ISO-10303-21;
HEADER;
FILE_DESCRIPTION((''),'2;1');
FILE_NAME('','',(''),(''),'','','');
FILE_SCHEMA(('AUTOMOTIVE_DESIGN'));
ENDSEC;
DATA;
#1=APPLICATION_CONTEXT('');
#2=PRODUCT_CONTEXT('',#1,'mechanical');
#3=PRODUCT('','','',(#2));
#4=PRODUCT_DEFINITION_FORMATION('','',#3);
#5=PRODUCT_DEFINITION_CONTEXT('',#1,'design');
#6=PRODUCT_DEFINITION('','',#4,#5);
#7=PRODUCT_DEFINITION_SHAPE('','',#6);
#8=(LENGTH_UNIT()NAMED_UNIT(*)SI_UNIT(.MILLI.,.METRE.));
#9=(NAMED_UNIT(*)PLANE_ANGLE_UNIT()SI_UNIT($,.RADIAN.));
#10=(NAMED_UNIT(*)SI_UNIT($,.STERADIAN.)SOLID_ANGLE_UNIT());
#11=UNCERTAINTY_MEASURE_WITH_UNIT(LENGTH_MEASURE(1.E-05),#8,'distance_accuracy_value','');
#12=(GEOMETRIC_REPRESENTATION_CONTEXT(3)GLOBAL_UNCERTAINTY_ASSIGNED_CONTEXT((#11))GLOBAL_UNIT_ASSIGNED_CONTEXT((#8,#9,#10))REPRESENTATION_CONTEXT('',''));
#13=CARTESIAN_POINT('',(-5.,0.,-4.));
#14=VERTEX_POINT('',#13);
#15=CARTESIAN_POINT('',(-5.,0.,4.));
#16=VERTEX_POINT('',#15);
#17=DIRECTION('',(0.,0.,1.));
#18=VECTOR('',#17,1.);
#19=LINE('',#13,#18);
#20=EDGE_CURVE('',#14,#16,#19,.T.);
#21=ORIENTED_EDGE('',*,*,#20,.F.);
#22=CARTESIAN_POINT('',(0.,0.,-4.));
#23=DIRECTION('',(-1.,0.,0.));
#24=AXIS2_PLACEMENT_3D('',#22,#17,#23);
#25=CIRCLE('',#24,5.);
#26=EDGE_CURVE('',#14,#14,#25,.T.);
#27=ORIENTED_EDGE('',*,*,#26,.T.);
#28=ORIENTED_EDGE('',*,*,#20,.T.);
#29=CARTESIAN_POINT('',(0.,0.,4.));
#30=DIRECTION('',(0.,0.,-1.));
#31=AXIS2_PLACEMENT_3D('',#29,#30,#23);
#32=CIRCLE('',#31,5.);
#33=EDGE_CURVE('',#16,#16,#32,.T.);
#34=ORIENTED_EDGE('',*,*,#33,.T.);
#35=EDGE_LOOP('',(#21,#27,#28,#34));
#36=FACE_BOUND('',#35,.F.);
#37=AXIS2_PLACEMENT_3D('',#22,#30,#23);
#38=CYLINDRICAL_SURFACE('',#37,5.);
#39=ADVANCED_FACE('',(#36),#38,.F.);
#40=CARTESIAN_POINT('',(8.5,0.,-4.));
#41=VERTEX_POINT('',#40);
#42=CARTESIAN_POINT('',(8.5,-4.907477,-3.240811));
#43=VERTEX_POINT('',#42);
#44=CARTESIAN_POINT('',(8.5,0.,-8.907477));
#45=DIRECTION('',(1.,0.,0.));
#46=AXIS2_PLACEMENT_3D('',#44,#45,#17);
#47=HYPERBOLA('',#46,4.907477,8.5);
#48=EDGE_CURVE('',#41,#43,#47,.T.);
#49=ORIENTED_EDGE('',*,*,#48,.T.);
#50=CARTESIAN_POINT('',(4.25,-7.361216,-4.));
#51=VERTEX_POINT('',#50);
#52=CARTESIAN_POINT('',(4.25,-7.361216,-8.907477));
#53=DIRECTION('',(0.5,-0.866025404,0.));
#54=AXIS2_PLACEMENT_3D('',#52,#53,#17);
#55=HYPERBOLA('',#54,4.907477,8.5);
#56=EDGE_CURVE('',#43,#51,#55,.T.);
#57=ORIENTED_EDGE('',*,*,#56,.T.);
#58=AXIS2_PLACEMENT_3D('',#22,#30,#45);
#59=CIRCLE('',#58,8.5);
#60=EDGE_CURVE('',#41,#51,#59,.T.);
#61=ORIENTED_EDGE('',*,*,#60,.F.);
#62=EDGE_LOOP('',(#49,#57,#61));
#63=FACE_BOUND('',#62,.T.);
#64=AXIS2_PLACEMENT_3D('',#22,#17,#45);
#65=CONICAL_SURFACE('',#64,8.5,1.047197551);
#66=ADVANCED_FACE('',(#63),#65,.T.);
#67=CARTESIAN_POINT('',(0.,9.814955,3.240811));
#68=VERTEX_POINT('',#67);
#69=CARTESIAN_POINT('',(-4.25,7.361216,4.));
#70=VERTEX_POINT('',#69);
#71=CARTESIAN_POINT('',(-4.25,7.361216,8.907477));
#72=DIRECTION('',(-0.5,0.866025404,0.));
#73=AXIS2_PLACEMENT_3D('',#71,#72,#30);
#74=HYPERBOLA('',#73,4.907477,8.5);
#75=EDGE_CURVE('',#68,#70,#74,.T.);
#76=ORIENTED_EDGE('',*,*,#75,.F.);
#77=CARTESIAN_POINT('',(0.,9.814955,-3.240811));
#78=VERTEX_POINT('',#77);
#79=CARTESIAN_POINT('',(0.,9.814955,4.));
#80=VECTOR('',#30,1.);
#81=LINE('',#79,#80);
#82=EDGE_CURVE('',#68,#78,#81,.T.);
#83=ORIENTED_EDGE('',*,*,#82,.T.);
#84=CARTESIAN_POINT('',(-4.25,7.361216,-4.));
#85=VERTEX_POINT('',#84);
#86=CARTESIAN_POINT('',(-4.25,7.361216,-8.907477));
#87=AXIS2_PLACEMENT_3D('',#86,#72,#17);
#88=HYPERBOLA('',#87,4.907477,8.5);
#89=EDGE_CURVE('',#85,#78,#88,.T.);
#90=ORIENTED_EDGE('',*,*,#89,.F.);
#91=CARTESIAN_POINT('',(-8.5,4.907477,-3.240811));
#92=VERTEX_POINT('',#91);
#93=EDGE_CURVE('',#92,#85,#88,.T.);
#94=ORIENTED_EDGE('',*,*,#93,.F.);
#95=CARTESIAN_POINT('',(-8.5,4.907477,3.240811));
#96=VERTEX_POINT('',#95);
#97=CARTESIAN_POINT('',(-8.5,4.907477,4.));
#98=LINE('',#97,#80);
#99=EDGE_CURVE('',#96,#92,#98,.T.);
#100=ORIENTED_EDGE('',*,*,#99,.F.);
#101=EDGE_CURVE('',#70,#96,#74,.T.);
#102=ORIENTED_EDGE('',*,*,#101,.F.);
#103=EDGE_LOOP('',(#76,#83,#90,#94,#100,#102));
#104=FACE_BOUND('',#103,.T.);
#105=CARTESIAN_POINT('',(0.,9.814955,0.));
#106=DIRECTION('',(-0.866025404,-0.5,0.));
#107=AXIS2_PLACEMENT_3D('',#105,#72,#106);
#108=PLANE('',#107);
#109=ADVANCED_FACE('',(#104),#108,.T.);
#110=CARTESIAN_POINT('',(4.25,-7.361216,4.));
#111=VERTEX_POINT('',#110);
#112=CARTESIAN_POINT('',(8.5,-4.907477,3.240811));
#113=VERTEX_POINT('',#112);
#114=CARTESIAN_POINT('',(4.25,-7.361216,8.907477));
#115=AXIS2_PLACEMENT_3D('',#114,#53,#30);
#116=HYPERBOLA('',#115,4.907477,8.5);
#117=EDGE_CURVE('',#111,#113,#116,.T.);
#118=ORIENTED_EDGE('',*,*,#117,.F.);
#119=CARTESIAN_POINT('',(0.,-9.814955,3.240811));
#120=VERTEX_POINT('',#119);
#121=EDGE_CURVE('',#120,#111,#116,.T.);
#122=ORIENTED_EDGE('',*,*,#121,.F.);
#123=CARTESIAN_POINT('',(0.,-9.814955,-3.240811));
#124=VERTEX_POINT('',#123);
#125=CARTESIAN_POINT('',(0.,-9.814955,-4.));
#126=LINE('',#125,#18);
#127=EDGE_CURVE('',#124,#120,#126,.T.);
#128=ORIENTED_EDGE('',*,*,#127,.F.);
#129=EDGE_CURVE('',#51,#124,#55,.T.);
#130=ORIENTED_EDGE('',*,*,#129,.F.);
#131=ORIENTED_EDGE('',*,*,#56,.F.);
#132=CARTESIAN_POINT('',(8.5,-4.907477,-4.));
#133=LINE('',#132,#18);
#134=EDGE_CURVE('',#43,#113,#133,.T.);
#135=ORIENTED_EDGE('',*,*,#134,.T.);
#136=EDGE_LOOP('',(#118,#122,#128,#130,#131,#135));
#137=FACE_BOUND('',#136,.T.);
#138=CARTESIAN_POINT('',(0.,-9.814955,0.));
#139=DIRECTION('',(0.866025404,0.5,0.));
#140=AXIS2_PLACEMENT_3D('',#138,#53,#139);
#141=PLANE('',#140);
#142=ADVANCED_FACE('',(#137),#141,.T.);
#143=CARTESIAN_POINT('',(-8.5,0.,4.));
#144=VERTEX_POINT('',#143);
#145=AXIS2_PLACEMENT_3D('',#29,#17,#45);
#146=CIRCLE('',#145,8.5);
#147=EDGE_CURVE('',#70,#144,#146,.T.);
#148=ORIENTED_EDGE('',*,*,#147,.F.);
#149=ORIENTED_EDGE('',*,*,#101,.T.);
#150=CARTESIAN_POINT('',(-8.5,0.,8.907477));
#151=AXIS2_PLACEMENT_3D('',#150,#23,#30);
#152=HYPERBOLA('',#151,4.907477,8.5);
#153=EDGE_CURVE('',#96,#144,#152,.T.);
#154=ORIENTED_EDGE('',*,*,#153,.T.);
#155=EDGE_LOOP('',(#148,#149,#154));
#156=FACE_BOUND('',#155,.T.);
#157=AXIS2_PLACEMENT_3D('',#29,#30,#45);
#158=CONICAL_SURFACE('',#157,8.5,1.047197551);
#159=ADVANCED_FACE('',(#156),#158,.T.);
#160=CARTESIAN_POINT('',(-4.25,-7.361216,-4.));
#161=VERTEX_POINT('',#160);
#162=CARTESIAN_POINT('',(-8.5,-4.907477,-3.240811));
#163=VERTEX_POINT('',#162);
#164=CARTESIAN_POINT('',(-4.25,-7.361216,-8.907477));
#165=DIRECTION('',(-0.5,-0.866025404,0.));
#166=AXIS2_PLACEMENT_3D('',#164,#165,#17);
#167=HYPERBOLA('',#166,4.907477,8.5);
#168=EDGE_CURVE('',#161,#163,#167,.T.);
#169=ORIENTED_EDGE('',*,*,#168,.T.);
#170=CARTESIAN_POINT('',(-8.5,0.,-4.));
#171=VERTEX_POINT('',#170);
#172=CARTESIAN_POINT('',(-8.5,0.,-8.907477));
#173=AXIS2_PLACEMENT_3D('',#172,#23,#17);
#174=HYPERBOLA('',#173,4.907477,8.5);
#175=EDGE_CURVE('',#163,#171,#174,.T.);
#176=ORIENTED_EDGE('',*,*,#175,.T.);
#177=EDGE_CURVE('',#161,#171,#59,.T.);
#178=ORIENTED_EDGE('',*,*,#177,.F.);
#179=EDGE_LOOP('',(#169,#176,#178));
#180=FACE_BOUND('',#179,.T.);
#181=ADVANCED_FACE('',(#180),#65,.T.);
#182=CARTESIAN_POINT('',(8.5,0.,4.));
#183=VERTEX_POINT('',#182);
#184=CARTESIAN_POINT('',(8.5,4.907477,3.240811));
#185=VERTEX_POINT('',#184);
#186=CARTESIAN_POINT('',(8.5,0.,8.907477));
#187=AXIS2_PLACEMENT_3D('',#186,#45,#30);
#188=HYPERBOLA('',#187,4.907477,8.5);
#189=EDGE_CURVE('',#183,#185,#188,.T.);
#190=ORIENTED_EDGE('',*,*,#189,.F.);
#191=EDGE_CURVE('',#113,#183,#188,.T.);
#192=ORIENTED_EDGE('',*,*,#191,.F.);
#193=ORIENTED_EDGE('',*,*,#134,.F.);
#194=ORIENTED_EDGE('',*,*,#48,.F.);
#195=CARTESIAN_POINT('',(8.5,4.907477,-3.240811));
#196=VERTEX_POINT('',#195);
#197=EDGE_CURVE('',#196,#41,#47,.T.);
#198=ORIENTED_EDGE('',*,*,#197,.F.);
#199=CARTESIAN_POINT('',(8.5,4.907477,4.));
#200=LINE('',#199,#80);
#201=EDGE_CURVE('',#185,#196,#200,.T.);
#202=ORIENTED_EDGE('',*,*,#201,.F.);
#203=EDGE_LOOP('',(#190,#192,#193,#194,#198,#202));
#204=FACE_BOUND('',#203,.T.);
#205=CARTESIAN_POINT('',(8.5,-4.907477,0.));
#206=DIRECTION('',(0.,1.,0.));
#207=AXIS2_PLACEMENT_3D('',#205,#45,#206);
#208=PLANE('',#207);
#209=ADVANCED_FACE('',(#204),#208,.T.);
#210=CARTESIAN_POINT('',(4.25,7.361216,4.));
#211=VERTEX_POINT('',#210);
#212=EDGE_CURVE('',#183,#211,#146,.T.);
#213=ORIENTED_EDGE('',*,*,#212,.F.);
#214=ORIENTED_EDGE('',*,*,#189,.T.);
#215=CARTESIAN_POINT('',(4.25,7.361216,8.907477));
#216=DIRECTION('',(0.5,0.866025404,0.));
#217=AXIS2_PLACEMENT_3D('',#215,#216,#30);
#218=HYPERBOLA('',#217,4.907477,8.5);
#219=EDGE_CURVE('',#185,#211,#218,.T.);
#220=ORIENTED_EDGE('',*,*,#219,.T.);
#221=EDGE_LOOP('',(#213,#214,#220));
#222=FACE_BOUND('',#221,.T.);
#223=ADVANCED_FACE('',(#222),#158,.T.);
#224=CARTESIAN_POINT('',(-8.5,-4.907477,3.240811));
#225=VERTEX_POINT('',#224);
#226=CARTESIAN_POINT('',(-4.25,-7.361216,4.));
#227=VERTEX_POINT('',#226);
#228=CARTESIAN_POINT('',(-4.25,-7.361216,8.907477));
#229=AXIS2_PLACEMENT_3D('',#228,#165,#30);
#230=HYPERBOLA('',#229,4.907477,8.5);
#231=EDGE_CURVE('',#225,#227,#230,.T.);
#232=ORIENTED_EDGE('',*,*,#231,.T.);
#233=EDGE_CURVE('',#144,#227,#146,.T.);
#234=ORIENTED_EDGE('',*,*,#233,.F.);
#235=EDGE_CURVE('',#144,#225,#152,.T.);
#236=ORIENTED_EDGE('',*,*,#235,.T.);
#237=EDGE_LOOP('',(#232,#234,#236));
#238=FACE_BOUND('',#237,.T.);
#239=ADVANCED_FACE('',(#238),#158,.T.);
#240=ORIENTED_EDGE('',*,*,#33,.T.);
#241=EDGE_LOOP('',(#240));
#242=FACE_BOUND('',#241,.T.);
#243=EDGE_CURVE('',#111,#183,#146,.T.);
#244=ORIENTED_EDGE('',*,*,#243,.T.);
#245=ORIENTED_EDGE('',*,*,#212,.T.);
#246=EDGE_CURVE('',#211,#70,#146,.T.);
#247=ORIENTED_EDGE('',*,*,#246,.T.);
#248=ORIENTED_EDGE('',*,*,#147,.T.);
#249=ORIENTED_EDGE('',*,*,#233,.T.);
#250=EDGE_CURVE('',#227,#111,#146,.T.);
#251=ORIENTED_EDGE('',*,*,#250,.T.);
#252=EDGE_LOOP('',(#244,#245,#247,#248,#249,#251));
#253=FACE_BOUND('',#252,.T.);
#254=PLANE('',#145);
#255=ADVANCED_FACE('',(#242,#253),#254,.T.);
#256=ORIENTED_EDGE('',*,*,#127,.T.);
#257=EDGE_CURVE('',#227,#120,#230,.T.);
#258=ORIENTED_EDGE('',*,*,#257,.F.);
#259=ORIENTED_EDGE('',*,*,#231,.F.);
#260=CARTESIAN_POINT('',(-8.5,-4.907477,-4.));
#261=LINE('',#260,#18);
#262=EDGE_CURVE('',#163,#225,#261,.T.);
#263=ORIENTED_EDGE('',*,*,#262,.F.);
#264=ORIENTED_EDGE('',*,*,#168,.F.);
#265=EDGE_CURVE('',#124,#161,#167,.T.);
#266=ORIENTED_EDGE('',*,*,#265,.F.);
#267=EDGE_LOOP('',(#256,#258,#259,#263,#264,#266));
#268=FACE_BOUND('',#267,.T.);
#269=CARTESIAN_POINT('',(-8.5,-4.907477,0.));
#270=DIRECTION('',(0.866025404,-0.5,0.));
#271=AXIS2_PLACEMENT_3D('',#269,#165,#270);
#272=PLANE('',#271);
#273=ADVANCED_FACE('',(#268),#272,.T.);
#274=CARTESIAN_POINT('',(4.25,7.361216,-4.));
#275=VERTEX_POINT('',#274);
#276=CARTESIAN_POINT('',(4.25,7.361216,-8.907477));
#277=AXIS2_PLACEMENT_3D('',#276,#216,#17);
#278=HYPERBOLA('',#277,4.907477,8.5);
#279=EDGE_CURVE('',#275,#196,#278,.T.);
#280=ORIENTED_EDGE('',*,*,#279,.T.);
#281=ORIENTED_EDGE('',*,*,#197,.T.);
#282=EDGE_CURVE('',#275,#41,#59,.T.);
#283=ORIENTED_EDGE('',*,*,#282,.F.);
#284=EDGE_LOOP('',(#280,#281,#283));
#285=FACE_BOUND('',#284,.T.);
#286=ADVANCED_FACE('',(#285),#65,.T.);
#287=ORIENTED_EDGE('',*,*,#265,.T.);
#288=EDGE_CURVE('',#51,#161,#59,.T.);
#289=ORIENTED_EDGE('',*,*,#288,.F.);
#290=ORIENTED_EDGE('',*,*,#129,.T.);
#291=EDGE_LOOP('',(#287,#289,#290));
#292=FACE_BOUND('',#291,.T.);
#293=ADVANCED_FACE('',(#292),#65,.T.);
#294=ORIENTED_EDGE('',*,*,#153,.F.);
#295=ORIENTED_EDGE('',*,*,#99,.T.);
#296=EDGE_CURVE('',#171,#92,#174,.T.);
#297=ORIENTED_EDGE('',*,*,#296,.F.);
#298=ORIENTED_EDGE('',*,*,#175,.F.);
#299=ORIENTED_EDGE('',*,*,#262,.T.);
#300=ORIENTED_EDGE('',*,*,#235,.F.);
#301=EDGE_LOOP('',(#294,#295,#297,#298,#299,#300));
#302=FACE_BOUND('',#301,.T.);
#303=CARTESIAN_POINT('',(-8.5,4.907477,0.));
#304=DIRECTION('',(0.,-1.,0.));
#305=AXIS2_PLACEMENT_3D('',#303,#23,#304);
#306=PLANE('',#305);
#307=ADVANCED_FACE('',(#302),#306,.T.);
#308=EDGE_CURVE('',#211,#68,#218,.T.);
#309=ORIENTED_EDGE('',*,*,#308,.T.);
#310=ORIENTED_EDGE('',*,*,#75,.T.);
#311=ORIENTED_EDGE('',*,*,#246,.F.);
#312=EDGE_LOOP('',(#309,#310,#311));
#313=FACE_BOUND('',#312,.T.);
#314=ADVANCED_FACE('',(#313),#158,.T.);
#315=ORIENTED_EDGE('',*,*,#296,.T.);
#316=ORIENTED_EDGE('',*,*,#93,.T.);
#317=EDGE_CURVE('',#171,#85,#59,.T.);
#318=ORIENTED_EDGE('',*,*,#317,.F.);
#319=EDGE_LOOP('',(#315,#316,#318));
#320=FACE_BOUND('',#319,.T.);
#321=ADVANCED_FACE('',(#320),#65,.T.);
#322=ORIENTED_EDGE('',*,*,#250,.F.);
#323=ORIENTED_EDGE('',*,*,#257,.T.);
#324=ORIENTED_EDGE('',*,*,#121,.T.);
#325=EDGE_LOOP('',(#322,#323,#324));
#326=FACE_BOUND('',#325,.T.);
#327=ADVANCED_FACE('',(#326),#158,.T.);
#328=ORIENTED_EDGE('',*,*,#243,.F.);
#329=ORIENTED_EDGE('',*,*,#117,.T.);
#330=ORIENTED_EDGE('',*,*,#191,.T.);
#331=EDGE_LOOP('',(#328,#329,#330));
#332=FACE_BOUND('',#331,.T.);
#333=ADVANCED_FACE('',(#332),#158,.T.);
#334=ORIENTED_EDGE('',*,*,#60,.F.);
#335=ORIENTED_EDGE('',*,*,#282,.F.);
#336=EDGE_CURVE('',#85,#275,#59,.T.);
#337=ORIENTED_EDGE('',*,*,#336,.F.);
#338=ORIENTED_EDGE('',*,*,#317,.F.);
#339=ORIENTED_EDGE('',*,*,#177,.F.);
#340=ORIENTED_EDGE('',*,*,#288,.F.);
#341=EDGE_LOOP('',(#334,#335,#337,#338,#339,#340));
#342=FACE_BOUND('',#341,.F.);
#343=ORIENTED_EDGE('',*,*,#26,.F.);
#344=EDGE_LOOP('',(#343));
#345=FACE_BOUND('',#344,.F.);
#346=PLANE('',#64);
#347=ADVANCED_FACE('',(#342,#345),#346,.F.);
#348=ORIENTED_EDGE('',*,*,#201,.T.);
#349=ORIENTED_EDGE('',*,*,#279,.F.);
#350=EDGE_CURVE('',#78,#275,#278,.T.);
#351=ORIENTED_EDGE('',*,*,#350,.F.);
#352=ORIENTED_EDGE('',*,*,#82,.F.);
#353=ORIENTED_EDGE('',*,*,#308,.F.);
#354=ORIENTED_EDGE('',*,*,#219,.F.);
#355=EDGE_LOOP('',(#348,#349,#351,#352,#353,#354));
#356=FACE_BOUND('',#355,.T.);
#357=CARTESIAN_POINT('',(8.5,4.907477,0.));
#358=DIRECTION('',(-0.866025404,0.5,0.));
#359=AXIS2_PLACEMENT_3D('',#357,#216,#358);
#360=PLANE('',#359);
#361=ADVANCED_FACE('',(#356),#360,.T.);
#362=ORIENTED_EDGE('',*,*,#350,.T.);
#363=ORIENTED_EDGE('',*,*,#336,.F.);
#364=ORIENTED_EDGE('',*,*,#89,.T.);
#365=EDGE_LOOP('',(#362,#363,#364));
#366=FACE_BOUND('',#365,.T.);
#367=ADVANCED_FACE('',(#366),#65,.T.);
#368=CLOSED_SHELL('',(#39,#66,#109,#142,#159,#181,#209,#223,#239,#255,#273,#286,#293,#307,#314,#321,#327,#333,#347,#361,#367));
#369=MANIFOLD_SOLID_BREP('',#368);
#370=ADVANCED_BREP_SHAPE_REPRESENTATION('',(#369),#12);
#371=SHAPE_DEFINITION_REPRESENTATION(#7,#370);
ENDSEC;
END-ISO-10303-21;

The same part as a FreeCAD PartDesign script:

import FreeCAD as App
import Part
import Sketcher
Q = App.Units.Quantity


def faces_at(feature, points):
    """Names of the faces that lie closest to the given points."""
    faces = feature.Shape.Faces
    near = lambda p: min(range(len(faces)), key=lambda i: faces[i].distToShape(Part.Vertex(*p))[0])
    return sorted({f"Face{near(p) + 1}" for p in points})


def add_polygon(sketch, points):
    """Adds a closed chain of lines whose ends are joined by coincident constraints."""
    first, n = sketch.GeometryCount, len(points)
    for a, b in zip(points, points[1:] + points[:1]):
        sketch.addGeometry(Part.LineSegment(App.Vector(*a, 0), App.Vector(*b, 0)), False)
    for i in range(n):
        sketch.addConstraint(Sketcher.Constraint("Coincident", first + i, 2, first + (i + 1) % n, 1))

doc = App.newDocument("Part")
body = doc.addObject("PartDesign::Body", "Body")

# Sketch on XY plane
sketch1 = doc.addObject("Sketcher::SketchObject", "Sketch")
body.addObject(sketch1)
sketch1.AttachmentSupport = (doc.XY_Plane, [""])
sketch1.MapMode = "FlatFace"
add_polygon(sketch1, [(-8, 5), (-8, -5), (0, -10), (8, -5), (8, 5), (0, 10)])  # lines 0-5
sketch1.addConstraint([
    Sketcher.Constraint("Vertical", 0),
    Sketcher.Constraint("Vertical", 3),
    Sketcher.Constraint("Symmetric", 0, 2, 3, 2, -1, 1),
    Sketcher.Constraint("Symmetric", 1, 2, 4, 2, -1, 1),
    Sketcher.Constraint("PointOnObject", 1, 2, -2),
    Sketcher.Constraint("Parallel", 2, 5),
    Sketcher.Constraint("Horizontal", 0, 2, 2, 2),
    Sketcher.Constraint("Angle", 1, Q("-30 deg")),
    Sketcher.Constraint("DistanceX", 0, 2, 2, 2, Q("17 mm")),
    Sketcher.Constraint("DistanceY", 0, 2, 0, 1, Q("9.814955 mm")),
])
pad1 = doc.addObject("PartDesign::Pad", "Pad")
body.addObject(pad1)
pad1.Profile = sketch1
pad1.Length = 8
pad1.Midplane = True

# Sketch on YZ plane
sketch2 = doc.addObject("Sketcher::SketchObject", "Sketch001")
body.addObject(sketch2)
sketch2.AttachmentSupport = (doc.YZ_Plane, [""])
sketch2.MapMode = "FlatFace"
add_polygon(sketch2, [(0, 4), (-5, 4), (0, -1)])  # lines 0-2
sketch2.addConstraint([
    Sketcher.Constraint("Horizontal", 0),
    Sketcher.Constraint("Vertical", 2),
    Sketcher.Constraint("PointOnObject", 1, 2, -2),
    Sketcher.Constraint("Equal", 0, 2),
    Sketcher.Constraint("DistanceX", 0, 2, 0, 1, Q("5 mm")),
    Sketcher.Constraint("DistanceY", -1, 1, 0, 2, Q("4 mm")),
])
groove = doc.addObject("PartDesign::Groove", "Groove")
body.addObject(groove)
groove.Profile = sketch2
groove.ReferenceAxis = (sketch2, ["V_Axis"])
groove.Angle = 360

# Sketch on YZ plane
sketch3 = doc.addObject("Sketcher::SketchObject", "Sketch002")
body.addObject(sketch3)
sketch3.AttachmentSupport = (doc.YZ_Plane, [""])
sketch3.MapMode = "FlatFace"
add_polygon(sketch3, [(0, -4), (5, -4), (0, 1)])  # lines 0-2
sketch3.addConstraint([
    Sketcher.Constraint("Horizontal", 0),
    Sketcher.Constraint("Vertical", 2),
    Sketcher.Constraint("PointOnObject", 1, 2, -2),
    Sketcher.Constraint("Equal", 0, 2),
    Sketcher.Constraint("DistanceX", 0, 1, 0, 2, Q("5 mm")),
    Sketcher.Constraint("DistanceY", 0, 2, -1, 1, Q("4 mm")),
])
groove2 = doc.addObject("PartDesign::Groove", "Groove001")
body.addObject(groove2)
groove2.Profile = sketch3
groove2.ReferenceAxis = (sketch3, ["V_Axis"])
groove2.Angle = 360
body2 = doc.addObject("PartDesign::Body", "Body001")

# Sketch on XY plane
sketch4 = doc.addObject("Sketcher::SketchObject", "Sketch003")
body2.addObject(sketch4)
sketch4.AttachmentSupport = (doc.getObject("XY_Plane001"), [""])
sketch4.MapMode = "FlatFace"
sketch4.AttachmentOffset = App.Placement(App.Vector(0, 0, -4), App.Rotation())
sketch4.addGeometry(Part.Circle(App.Vector(0, 0, 0), App.Vector(0, 0, 1), 5), False)
sketch4.addConstraint([
    Sketcher.Constraint("Coincident", 0, 3, -1, 1),
    Sketcher.Constraint("Diameter", 0, Q("10 mm")),
])
pad2 = doc.addObject("PartDesign::Pad", "Pad001")
body2.addObject(pad2)
pad2.Profile = sketch4
pad2.Length = 8
doc.recompute()

boolean = doc.addObject("PartDesign::Boolean", "Boolean")
body.addObject(boolean)
boolean.Type = "Cut"
boolean.addObjects([body2])
body3 = doc.addObject("PartDesign::Body", "Body002")

# Sketch on XY plane
sketch5 = doc.addObject("Sketcher::SketchObject", "Sketch004")
body3.addObject(sketch5)
sketch5.AttachmentSupport = (doc.getObject("XY_Plane002"), [""])
sketch5.MapMode = "FlatFace"
sketch5.AttachmentOffset = App.Placement(App.Vector(0, 0, 4), App.Rotation())
add_polygon(sketch5, [(-56, 58), (-56, -58), (56, -58), (56, 58)])  # lines 0-3
sketch5.addGeometry(Part.Circle(App.Vector(0, 0, 0), App.Vector(0, 0, 1), 8), False)  # 4
sketch5.addConstraint([
    Sketcher.Constraint("Vertical", 0),
    Sketcher.Constraint("Horizontal", 1),
    Sketcher.Constraint("Vertical", 2),
    Sketcher.Constraint("Horizontal", 3),
    Sketcher.Constraint("Coincident", 4, 3, -1, 1),
    Sketcher.Constraint("Symmetric", 0, 2, 2, 2, -1, 1),
    Sketcher.Constraint("Diameter", 4, Q("17 mm")),
    Sketcher.Constraint("DistanceX", 1, 1, 1, 2, Q("112.422 mm")),
    Sketcher.Constraint("DistanceY", 0, 2, 0, 1, Q("115.052 mm")),
])
pad3 = doc.addObject("PartDesign::Pad", "Pad002")
body3.addObject(pad3)
pad3.Profile = sketch5
pad3.Length = 25.4
pad3.Reversed = True
doc.recompute()

datumplane = doc.addObject("PartDesign::Plane", "DatumPlane")
body3.addObject(datumplane)
datumplane.AttachmentSupport = (doc.getObject("XY_Plane002"), [""])
datumplane.MapMode = "FlatFace"
datumplane.AttachmentOffset = App.Placement(App.Vector(0, 0, 4), App.Rotation())
draft = doc.addObject("PartDesign::Draft", "Draft")
body3.addObject(draft)
draft.Base = (pad3, faces_at(pad3, [
    (0, -57.526, -8.7),
    (56.211, 0, -8.7),
    (0, 57.526, -8.7),
    (-56.211, 0, -8.7),
    (-8.5, 0, -8.7),
]))
draft.NeutralPlane = (datumplane, [""])
draft.Angle = 60
draft.Reversed = True
doc.recompute()

boolean2 = doc.addObject("PartDesign::Boolean", "Boolean001")
body.addObject(boolean2)
boolean2.Type = "Cut"
boolean2.addObjects([body3])
body4 = doc.addObject("PartDesign::Body", "Body003")

# Sketch on XY plane
sketch6 = doc.addObject("Sketcher::SketchObject", "Sketch005")
body4.addObject(sketch6)
sketch6.AttachmentSupport = (doc.getObject("XY_Plane003"), [""])
sketch6.MapMode = "FlatFace"
sketch6.AttachmentOffset = App.Placement(App.Vector(0, 0, -4), App.Rotation())
add_polygon(sketch6, [(-56, -58), (-56, 58), (56, 58), (56, -58)])  # lines 0-3
sketch6.addGeometry(Part.Circle(App.Vector(0, 0, 0), App.Vector(0, 0, 1), 8), False)  # 4
sketch6.addConstraint([
    Sketcher.Constraint("Vertical", 0),
    Sketcher.Constraint("Horizontal", 1),
    Sketcher.Constraint("Vertical", 2),
    Sketcher.Constraint("Horizontal", 3),
    Sketcher.Constraint("Coincident", 4, 3, -1, 1),
    Sketcher.Constraint("Symmetric", 0, 2, 2, 2, -1, 1),
    Sketcher.Constraint("Diameter", 4, Q("17 mm")),
    Sketcher.Constraint("DistanceX", 1, 1, 1, 2, Q("112.422 mm")),
    Sketcher.Constraint("DistanceY", 0, 1, 0, 2, Q("115.052 mm")),
])
pad4 = doc.addObject("PartDesign::Pad", "Pad003")
body4.addObject(pad4)
pad4.Profile = sketch6
pad4.Length = 25.4
doc.recompute()

datumplane2 = doc.addObject("PartDesign::Plane", "DatumPlane001")
body4.addObject(datumplane2)
datumplane2.AttachmentSupport = (doc.getObject("XY_Plane003"), [""])
datumplane2.MapMode = "FlatFace"
datumplane2.AttachmentOffset = App.Placement(App.Vector(0, 0, -4), App.Rotation())
draft2 = doc.addObject("PartDesign::Draft", "Draft001")
body4.addObject(draft2)
draft2.Base = (pad4, faces_at(pad4, [
    (0, -57.526, 8.7),
    (56.211, 0, 8.7),
    (0, 57.526, 8.7),
    (-56.211, 0, 8.7),
    (-8.5, 0, 8.7),
]))
draft2.NeutralPlane = (datumplane2, [""])
draft2.Angle = 60
draft2.Reversed = False
doc.recompute()

boolean3 = doc.addObject("PartDesign::Boolean", "Boolean002")
body.addObject(boolean3)
boolean3.Type = "Cut"
boolean3.addObjects([body4])

doc.recompute()
